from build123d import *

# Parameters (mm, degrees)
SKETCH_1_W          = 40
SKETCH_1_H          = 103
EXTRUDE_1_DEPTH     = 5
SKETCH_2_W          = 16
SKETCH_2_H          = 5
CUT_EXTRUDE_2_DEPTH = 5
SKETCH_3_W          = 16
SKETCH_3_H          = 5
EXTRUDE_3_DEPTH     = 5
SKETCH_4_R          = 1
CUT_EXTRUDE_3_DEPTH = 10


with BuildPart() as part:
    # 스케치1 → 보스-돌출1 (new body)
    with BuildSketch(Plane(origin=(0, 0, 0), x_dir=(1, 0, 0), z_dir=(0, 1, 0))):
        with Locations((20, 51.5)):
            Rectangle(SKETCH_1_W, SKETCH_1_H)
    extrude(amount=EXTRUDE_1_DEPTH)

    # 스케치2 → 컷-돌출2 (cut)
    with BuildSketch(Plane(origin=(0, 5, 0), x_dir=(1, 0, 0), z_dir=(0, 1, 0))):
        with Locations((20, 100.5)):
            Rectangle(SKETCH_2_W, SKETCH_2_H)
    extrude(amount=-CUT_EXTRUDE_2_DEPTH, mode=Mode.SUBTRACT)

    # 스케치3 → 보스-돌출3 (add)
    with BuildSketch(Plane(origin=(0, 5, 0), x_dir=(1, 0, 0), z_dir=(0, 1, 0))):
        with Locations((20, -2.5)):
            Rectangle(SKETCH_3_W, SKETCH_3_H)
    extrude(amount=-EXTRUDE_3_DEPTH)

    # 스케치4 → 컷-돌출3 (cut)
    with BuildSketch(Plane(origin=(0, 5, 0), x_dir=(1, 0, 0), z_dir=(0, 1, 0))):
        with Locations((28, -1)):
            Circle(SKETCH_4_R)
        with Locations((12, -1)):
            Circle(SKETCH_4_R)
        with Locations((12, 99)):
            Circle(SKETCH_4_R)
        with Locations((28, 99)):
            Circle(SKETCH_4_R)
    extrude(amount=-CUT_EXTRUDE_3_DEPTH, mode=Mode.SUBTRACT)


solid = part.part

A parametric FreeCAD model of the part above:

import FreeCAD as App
import Part
import Sketcher
from FreeCAD import Vector


def add_polygon(sketch, points):
    """Adds a closed chain of lines whose ends are joined by coincident constraints."""
    first, n = sketch.GeometryCount, len(points)
    for a, b in zip(points, points[1:] + points[:1]):
        sketch.addGeometry(Part.LineSegment(App.Vector(*a, 0), App.Vector(*b, 0)), False)
    for i in range(n):
        sketch.addConstraint(Sketcher.Constraint("Coincident", first + i, 2, first + (i + 1) % n, 1))

doc = App.newDocument("Part")
body = doc.addObject("PartDesign::Body", "Body")

# Sketch on XZ plane
sketch1 = doc.addObject("Sketcher::SketchObject", "Sketch")
body.addObject(sketch1)
sketch1.AttachmentSupport = (doc.XZ_Plane, [""])
sketch1.MapMode = "FlatFace"
add_polygon(sketch1, [(0, -103), (0, 0), (40, 0), (40, -103)])  # lines 0-3
sketch1.addConstraint([
    Sketcher.Constraint("Vertical", 0),
    Sketcher.Constraint("Horizontal", 1),
    Sketcher.Constraint("Vertical", 2),
    Sketcher.Constraint("Horizontal", 3),
    Sketcher.Constraint("Coincident", 0, 2, -1, 1),
    Sketcher.Constraint("DistanceX", 1, 1, 1, 2, 40.0),
    Sketcher.Constraint("DistanceY", 0, 1, 0, 2, 103.0),
])
pad1 = doc.addObject("PartDesign::Pad", "Pad")
body.addObject(pad1)
pad1.Profile = sketch1
pad1.Length = 5
pad1.Reversed = True

# Sketch on XZ plane
sketch2 = doc.addObject("Sketcher::SketchObject", "Sketch001")
body.addObject(sketch2)
sketch2.AttachmentSupport = (doc.XZ_Plane, [""])
sketch2.MapMode = "FlatFace"
sketch2.AttachmentOffset = App.Placement(Vector(0, 0, -5), App.Rotation())
add_polygon(sketch2, [(12, -103), (12, -98), (28, -98), (28, -103)])  # lines 0-3
sketch2.addConstraint([
    Sketcher.Constraint("Vertical", 0),
    Sketcher.Constraint("Horizontal", 1),
    Sketcher.Constraint("Vertical", 2),
    Sketcher.Constraint("Horizontal", 3),
    Sketcher.Constraint("DistanceX", 1, 1, 1, 2, 16.0),
    Sketcher.Constraint("DistanceY", 0, 1, 0, 2, 5.0),
    Sketcher.Constraint("DistanceX", -1, 1, 0, 2, 12.0),
    Sketcher.Constraint("DistanceY", 0, 2, -1, 1, 98.0),
])
pocket1 = doc.addObject("PartDesign::Pocket", "Pocket")
body.addObject(pocket1)
pocket1.Profile = sketch2
pocket1.Length = 5
pocket1.Reversed = True

# Sketch on XZ plane
sketch3 = doc.addObject("Sketcher::SketchObject", "Sketch002")
body.addObject(sketch3)
sketch3.AttachmentSupport = (doc.XZ_Plane, [""])
sketch3.MapMode = "FlatFace"
sketch3.AttachmentOffset = App.Placement(Vector(0, 0, -5), App.Rotation())
add_polygon(sketch3, [(12, 0), (12, 5), (28, 5), (28, 0)])  # lines 0-3
sketch3.addConstraint([
    Sketcher.Constraint("Vertical", 0),
    Sketcher.Constraint("Horizontal", 1),
    Sketcher.Constraint("Vertical", 2),
    Sketcher.Constraint("Horizontal", 3),
    Sketcher.Constraint("PointOnObject", 2, 2, -1),
    Sketcher.Constraint("DistanceX", 1, 1, 1, 2, 16.0),
    Sketcher.Constraint("DistanceY", 0, 1, 0, 2, 5.0),
    Sketcher.Constraint("DistanceX", -1, 1, 0, 2, 12.0),
])
pad2 = doc.addObject("PartDesign::Pad", "Pad001")
body.addObject(pad2)
pad2.Profile = sketch3
pad2.Length = 5

# Sketch on XZ plane
sketch4 = doc.addObject("Sketcher::SketchObject", "Sketch003")
body.addObject(sketch4)
sketch4.AttachmentSupport = (doc.XZ_Plane, [""])
sketch4.MapMode = "FlatFace"
sketch4.AttachmentOffset = App.Placement(Vector(0, 0, -5), App.Rotation())
sketch4.addGeometry([
    Part.Circle(Vector(28, 1, 0), Vector(0, 0, 1), 1),
    Part.Circle(Vector(12, 1, 0), Vector(0, 0, 1), 1),
    Part.Circle(Vector(12, -99, 0), Vector(0, 0, 1), 1),
    Part.Circle(Vector(28, -99, 0), Vector(0, 0, 1), 1),
], False)
sketch4.addConstraint([
    Sketcher.Constraint("Equal", 0, 1),
    Sketcher.Constraint("Equal", 1, 2),
    Sketcher.Constraint("Equal", 2, 3),
    Sketcher.Constraint("Horizontal", 0, 3, 1, 3),
    Sketcher.Constraint("Horizontal", 2, 3, 3, 3),
    Sketcher.Constraint("Vertical", 1, 3, 2, 3),
    Sketcher.Constraint("Vertical", 0, 3, 3, 3),
    Sketcher.Constraint("Diameter", 0, 2.0),
    Sketcher.Constraint("DistanceX", -1, 1, 0, 3, 28.0),
    Sketcher.Constraint("DistanceY", -1, 1, 0, 3, 1.0),
    Sketcher.Constraint("DistanceX", -1, 1, 1, 3, 12.0),
    Sketcher.Constraint("DistanceY", 2, 3, -1, 1, 99.0),
])
pocket2 = doc.addObject("PartDesign::Pocket", "Pocket001")
body.addObject(pocket2)
pocket2.Profile = sketch4
pocket2.Length = 10
pocket2.Reversed = True

doc.recompute()
